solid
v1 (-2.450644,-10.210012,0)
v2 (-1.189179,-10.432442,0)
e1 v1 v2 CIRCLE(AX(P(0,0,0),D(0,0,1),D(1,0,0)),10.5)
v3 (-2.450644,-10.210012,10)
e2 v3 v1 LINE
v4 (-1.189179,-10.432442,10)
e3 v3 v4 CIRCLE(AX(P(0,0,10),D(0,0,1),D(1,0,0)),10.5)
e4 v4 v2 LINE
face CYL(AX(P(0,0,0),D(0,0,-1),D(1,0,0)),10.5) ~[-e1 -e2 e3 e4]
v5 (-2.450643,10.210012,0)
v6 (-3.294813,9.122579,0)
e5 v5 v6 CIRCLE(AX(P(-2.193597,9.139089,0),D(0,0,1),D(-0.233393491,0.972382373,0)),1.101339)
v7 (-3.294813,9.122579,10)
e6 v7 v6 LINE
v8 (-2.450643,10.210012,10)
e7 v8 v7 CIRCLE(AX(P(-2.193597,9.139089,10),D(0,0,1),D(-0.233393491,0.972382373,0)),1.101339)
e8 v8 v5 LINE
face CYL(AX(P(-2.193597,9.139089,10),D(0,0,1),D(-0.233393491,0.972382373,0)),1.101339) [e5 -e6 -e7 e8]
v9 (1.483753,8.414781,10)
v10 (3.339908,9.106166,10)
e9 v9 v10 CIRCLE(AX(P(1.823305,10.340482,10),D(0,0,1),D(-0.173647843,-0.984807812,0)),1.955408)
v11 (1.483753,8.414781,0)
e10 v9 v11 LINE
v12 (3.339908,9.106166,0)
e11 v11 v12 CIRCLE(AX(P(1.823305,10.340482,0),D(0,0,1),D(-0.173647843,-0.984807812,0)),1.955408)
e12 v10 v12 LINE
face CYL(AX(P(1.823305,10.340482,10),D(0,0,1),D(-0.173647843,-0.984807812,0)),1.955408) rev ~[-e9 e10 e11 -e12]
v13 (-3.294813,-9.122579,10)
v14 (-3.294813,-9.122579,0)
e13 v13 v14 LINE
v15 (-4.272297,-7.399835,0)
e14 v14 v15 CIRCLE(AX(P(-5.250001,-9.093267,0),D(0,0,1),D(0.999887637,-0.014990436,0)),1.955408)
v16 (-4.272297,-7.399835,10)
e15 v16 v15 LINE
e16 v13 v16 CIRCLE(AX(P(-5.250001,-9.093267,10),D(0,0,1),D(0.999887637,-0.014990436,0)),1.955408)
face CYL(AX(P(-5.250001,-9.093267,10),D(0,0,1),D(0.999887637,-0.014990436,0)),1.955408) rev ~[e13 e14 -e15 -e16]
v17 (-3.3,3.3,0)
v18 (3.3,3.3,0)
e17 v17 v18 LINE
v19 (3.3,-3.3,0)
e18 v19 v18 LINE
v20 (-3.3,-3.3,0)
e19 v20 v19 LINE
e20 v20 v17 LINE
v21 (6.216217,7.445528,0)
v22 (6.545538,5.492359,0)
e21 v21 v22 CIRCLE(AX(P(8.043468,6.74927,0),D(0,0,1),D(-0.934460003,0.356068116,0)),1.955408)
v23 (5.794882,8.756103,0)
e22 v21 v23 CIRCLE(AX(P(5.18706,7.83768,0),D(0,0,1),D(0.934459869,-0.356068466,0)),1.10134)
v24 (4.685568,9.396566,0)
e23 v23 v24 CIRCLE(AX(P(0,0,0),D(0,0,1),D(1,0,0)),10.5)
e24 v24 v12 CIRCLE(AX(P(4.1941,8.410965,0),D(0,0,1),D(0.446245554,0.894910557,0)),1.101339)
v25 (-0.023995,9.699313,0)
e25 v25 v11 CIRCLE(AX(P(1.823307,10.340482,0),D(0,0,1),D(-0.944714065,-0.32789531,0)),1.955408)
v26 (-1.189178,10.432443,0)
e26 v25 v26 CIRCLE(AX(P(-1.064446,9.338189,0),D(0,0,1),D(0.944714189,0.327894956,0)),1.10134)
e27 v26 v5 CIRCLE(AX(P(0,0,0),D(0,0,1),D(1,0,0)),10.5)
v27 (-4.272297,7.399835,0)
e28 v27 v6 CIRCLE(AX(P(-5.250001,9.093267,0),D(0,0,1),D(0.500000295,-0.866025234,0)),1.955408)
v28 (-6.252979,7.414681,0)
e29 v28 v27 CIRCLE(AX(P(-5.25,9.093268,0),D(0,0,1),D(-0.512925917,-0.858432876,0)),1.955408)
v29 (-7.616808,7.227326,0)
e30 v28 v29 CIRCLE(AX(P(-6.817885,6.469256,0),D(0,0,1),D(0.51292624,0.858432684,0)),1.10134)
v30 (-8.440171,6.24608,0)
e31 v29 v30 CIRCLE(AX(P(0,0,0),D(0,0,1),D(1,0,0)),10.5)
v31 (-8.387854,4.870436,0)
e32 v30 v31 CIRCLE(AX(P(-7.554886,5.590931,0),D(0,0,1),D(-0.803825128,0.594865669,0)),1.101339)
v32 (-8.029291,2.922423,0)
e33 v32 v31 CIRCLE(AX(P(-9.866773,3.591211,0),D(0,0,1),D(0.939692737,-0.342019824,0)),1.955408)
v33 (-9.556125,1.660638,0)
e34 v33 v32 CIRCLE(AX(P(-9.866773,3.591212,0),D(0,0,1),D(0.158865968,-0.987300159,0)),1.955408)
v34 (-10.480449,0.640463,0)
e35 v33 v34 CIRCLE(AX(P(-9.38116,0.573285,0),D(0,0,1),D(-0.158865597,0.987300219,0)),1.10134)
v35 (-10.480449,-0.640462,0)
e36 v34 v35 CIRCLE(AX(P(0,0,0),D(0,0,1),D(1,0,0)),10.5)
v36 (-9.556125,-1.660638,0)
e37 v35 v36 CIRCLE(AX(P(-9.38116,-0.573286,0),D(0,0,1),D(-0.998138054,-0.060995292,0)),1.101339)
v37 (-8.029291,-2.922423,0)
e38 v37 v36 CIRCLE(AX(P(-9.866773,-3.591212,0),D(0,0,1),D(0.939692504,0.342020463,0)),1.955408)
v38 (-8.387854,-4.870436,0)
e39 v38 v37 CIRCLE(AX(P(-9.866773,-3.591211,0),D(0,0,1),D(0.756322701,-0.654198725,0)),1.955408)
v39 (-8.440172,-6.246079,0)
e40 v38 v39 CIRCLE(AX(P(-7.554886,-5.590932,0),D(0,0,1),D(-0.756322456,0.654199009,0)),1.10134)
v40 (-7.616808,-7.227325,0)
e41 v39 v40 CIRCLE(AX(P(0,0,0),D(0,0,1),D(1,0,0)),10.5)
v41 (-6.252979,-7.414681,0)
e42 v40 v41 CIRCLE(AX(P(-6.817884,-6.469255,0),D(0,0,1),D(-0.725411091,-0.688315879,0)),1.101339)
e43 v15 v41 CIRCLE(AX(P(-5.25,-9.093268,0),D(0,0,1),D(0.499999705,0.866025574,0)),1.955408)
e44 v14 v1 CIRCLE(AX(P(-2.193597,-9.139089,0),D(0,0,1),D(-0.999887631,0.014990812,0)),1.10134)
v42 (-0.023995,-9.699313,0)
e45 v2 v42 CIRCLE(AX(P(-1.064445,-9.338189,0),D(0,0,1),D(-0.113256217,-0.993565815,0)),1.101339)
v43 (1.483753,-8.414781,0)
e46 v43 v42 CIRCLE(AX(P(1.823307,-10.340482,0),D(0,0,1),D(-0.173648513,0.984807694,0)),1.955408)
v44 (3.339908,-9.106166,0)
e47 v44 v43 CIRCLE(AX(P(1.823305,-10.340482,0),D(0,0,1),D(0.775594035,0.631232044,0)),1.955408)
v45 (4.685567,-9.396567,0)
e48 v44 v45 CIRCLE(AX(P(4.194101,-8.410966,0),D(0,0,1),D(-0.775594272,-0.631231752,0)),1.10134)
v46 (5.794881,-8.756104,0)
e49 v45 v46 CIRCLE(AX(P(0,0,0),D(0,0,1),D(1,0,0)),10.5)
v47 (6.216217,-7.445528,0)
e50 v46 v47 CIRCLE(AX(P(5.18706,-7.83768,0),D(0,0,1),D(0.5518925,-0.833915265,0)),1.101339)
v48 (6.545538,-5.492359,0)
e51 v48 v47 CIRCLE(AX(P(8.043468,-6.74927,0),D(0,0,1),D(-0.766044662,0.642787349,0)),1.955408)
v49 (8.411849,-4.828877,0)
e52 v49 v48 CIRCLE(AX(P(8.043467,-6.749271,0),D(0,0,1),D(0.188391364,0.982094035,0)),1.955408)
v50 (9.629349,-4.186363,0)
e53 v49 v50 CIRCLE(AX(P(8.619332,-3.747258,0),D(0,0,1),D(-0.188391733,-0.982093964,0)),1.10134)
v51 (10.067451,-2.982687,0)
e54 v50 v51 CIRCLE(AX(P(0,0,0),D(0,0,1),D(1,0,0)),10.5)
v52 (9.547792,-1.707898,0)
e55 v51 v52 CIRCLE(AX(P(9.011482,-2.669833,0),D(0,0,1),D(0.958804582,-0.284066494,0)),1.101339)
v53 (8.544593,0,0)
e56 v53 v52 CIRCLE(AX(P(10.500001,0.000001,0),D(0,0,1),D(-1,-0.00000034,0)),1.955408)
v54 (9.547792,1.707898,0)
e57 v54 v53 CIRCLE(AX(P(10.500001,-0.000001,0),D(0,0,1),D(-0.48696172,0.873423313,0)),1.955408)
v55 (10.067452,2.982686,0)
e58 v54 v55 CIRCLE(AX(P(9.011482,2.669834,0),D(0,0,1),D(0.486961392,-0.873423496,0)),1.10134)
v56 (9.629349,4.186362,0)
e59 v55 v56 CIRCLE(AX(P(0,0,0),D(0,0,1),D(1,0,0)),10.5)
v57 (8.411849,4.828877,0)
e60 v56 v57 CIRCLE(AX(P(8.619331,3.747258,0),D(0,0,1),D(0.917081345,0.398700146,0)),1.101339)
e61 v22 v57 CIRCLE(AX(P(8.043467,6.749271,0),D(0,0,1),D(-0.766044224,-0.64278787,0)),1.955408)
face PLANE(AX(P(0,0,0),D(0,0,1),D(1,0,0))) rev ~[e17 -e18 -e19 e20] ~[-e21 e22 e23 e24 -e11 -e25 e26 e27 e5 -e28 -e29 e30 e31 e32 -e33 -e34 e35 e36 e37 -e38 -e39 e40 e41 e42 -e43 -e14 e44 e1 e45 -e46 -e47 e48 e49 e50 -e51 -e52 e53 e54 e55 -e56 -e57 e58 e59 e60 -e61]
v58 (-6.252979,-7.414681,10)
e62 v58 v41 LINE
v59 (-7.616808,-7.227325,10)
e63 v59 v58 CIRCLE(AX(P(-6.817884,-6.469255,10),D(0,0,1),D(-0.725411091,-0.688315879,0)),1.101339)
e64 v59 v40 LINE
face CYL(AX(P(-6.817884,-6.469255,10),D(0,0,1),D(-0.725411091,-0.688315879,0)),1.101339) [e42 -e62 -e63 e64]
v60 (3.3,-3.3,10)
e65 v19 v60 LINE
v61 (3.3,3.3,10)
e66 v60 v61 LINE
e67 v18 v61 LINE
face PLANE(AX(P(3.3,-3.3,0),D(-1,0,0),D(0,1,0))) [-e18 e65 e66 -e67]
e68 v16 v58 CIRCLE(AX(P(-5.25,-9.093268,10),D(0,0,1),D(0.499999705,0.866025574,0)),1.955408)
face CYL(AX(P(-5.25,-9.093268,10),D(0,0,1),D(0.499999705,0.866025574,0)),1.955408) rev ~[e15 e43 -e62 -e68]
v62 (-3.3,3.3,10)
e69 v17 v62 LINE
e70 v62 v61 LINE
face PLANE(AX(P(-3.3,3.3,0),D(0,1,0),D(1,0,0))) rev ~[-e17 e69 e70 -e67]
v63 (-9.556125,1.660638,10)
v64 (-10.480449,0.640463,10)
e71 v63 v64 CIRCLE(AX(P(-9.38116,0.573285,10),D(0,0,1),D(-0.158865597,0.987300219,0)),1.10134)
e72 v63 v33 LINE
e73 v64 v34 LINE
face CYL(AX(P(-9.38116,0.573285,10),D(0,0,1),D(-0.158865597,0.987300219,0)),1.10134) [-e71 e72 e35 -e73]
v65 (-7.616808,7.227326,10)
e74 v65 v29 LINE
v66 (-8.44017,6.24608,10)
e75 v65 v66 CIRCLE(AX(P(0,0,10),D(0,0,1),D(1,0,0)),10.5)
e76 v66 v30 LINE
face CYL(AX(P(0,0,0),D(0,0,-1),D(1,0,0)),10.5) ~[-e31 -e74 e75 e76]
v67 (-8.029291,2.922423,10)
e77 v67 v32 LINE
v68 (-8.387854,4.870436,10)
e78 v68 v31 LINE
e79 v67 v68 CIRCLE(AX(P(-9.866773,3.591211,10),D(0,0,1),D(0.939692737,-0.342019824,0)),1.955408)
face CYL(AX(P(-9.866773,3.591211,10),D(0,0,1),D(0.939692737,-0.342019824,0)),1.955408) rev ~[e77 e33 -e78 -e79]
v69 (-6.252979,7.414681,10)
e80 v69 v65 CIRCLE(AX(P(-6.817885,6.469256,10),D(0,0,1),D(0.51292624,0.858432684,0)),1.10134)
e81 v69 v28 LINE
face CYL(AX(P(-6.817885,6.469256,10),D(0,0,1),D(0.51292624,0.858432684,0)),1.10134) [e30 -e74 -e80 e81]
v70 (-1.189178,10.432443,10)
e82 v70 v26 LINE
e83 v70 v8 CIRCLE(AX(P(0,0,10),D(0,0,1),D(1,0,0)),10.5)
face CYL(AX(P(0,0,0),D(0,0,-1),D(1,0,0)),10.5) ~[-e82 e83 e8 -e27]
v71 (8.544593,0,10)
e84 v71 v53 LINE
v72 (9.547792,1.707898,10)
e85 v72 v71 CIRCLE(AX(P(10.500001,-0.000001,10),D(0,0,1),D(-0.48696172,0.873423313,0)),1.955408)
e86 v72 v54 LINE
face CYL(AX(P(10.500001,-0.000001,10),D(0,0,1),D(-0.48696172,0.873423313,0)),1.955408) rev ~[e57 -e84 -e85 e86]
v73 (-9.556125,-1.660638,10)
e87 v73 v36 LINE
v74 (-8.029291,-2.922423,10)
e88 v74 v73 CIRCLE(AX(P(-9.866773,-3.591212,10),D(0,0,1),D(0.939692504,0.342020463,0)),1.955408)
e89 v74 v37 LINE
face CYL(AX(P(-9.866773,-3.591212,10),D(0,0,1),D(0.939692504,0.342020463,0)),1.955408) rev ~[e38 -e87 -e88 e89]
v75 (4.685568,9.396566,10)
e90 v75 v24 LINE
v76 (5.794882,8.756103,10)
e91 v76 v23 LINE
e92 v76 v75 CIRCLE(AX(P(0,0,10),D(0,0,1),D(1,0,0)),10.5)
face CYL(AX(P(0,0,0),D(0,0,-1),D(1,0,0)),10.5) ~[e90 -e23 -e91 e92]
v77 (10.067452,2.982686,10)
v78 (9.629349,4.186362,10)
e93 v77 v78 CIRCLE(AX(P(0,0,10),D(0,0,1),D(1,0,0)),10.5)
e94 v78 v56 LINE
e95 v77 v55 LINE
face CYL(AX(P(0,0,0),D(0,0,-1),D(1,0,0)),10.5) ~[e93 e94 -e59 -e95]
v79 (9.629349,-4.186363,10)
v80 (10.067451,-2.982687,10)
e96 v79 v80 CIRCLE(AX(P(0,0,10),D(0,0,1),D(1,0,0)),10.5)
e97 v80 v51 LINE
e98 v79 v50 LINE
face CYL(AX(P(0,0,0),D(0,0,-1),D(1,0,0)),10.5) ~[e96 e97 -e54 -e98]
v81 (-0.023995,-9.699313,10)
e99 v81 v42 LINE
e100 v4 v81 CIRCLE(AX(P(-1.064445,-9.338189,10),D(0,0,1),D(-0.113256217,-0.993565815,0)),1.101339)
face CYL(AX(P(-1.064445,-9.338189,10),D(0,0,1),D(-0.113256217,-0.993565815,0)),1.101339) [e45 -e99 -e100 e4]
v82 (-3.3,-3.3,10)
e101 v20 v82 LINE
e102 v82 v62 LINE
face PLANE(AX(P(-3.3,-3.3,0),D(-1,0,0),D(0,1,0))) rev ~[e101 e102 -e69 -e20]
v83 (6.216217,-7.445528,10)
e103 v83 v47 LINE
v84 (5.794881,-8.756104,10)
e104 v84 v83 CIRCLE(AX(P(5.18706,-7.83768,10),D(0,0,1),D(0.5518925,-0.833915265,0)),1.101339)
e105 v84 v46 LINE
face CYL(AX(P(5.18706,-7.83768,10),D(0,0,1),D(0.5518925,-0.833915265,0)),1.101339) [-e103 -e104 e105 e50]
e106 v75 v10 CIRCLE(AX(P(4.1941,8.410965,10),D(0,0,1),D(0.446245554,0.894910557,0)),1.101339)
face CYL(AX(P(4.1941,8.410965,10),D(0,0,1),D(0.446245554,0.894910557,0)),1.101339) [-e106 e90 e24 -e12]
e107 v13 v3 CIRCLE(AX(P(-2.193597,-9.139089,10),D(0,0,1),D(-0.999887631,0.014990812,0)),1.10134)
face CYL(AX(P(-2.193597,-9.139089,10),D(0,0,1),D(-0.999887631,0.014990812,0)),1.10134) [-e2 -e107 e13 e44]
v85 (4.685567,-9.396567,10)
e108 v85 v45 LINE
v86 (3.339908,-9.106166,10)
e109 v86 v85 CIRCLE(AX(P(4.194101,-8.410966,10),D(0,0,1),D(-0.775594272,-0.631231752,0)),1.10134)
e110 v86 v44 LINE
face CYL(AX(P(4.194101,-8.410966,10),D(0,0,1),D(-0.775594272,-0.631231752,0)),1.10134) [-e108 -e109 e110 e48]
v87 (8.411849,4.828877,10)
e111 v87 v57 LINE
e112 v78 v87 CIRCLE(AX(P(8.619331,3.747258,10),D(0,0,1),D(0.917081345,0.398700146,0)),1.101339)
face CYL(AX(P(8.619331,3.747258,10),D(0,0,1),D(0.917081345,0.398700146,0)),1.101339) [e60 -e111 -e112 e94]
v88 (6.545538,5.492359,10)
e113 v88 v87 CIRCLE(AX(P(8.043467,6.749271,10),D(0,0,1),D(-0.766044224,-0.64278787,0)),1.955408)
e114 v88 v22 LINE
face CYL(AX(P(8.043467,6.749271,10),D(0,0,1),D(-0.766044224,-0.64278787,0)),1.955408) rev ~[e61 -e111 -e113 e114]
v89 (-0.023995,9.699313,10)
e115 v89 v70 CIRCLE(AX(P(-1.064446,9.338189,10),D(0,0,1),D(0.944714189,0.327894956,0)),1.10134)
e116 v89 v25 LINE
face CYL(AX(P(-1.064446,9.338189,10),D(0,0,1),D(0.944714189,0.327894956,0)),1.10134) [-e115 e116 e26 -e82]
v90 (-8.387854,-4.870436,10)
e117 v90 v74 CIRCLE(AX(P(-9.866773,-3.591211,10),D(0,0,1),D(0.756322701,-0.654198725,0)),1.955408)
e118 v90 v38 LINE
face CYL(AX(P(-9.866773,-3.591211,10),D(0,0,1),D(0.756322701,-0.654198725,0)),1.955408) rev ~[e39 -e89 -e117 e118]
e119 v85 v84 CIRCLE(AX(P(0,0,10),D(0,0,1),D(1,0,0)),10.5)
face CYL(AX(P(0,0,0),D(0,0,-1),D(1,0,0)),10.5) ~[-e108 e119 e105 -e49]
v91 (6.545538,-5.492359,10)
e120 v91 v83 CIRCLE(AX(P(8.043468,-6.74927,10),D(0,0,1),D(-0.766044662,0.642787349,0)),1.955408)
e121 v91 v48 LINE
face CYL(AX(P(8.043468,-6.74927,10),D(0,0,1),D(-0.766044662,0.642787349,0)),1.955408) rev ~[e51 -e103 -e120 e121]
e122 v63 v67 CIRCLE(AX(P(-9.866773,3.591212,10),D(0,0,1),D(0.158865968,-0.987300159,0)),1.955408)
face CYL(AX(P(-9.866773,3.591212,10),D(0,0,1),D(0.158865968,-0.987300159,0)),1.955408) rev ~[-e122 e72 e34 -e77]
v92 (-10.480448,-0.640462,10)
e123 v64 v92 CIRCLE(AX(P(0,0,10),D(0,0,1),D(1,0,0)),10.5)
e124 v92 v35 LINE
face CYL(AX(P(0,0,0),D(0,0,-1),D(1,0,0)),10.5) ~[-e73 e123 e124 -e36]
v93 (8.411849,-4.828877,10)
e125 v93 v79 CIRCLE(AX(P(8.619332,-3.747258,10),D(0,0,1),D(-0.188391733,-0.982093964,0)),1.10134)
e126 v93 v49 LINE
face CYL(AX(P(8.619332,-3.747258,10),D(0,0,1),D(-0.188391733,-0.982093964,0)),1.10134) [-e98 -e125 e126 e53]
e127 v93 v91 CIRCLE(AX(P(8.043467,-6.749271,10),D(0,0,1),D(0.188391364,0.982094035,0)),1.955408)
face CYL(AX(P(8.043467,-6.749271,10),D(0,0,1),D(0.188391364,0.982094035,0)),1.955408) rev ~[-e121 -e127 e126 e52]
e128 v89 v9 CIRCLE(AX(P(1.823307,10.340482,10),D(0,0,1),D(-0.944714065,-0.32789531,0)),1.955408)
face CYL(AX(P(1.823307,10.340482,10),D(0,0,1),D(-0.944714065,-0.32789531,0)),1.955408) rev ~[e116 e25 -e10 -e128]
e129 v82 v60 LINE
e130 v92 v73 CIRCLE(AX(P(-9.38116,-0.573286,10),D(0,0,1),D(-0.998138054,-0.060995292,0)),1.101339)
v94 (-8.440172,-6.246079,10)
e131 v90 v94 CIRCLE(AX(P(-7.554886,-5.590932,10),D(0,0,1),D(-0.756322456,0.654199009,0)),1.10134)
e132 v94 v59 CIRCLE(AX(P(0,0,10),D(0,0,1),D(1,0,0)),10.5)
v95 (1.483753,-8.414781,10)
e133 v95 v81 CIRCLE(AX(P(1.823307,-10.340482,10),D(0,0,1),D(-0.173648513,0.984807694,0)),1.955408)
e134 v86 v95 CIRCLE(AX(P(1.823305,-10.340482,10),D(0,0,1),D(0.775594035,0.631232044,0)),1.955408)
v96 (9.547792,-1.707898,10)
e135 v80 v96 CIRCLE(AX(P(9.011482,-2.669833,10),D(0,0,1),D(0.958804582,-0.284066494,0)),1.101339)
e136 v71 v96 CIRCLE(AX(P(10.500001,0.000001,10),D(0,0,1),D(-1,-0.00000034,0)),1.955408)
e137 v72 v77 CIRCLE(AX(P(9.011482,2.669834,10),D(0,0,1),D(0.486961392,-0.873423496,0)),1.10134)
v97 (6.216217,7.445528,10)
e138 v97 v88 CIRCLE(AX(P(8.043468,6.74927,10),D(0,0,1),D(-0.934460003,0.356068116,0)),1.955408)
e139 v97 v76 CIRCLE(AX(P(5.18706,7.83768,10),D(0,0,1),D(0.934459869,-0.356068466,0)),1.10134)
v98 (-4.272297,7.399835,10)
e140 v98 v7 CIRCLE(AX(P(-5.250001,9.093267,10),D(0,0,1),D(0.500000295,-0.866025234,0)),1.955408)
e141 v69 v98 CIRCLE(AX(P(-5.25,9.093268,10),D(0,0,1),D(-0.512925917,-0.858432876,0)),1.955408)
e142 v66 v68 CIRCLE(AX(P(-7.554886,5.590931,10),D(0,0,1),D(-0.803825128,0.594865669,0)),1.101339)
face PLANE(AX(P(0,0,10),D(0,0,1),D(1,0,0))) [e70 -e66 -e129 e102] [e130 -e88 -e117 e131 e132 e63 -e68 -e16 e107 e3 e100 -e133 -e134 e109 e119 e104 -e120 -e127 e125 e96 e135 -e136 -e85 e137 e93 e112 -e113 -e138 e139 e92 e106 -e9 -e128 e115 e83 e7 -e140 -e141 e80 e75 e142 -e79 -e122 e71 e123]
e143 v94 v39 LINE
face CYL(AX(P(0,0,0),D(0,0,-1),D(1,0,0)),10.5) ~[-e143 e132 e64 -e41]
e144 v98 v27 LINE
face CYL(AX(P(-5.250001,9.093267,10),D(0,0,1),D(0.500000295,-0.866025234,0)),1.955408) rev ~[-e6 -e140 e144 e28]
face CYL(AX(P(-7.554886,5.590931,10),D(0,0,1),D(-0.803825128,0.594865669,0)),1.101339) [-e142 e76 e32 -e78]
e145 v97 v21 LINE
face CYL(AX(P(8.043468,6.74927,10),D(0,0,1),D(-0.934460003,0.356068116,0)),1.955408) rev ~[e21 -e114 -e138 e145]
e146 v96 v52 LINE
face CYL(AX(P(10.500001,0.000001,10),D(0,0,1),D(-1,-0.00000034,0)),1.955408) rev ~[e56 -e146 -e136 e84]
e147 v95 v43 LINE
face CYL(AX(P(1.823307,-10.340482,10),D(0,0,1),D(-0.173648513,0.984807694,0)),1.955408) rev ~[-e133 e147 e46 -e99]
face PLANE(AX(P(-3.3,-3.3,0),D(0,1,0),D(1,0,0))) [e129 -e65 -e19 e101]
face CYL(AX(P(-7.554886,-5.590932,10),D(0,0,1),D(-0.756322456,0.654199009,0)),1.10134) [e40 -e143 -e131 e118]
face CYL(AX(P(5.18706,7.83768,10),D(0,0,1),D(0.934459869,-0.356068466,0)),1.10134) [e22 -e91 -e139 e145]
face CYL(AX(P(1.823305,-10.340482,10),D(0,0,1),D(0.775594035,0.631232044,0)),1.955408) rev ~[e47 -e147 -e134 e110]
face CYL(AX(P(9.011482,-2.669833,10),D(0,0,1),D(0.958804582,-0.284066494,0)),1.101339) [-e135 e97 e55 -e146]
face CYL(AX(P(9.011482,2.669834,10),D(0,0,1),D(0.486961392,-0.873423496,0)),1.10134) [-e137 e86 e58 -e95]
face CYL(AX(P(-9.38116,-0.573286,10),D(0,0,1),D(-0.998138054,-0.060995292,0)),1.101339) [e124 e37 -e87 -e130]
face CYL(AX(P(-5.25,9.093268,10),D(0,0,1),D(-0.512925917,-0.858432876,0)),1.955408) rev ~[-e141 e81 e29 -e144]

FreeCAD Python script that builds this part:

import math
import FreeCAD as App
import Part
import Sketcher

doc = App.newDocument("Part")
body = doc.addObject("PartDesign::Body", "Body")

# Sketch on XY plane
sketch1 = body.newObject("Sketcher::SketchObject", "Sketch")
sketch1.AttachmentSupport = (doc.getObject("XY_Plane"), [""])
sketch1.MapMode = "FlatFace"
sketch1.addGeometry([
    Part.Circle(App.Vector(0, 0, 0), App.Vector(0, 0, 1), 10),  # 0
    Part.LineSegment(App.Vector(3, -3, 0), App.Vector(-3, -3, 0)),  # 1
    Part.LineSegment(App.Vector(-3, -3, 0), App.Vector(-3, 3, 0)),  # 2
    Part.LineSegment(App.Vector(-3, 3, 0), App.Vector(3, 3, 0)),  # 3
    Part.LineSegment(App.Vector(3, 3, 0), App.Vector(3, -3, 0)),  # 4
], False)
sketch1.addConstraint([
    Sketcher.Constraint("Coincident", 1, 2, 2, 1),
    Sketcher.Constraint("Coincident", 2, 2, 3, 1),
    Sketcher.Constraint("Coincident", 3, 2, 4, 1),
    Sketcher.Constraint("Coincident", 4, 2, 1, 1),
    Sketcher.Constraint("Horizontal", 1),
    Sketcher.Constraint("Vertical", 2),
    Sketcher.Constraint("Horizontal", 3),
    Sketcher.Constraint("Vertical", 4),
    Sketcher.Constraint("Coincident", 0, 3, -1, 1),
    Sketcher.Constraint("Symmetric", 1, 2, 3, 2, -1, 1),
    Sketcher.Constraint("Equal", 3, 2),
    Sketcher.Constraint("Diameter", 0, 21.0),
    Sketcher.Constraint("DistanceX", 1, 2, 1, 1, 6.6),
])
pad1 = body.newObject("PartDesign::Pad", "Pad")
pad1.Profile = sketch1
pad1.Length = 10

# Sketch on XY plane
sketch2 = body.newObject("Sketcher::SketchObject", "Sketch001")
sketch2.AttachmentSupport = (doc.getObject("XY_Plane"), [""])
sketch2.MapMode = "FlatFace"
sketch2.AttachmentOffset = App.Placement(App.Vector(0, 0, 10), App.Rotation())
sketch2.addGeometry([
    Part.ArcOfCircle(Part.Circle(App.Vector(10.5, 0, 0), App.Vector(0, 0, 1), 3), math.radians(-98), math.radians(98)),  # 0
    Part.ArcOfCircle(Part.Circle(App.Vector(9, 2.7, 0), App.Vector(0, 0, 1), 1.1), math.radians(-61), math.radians(17)),  # 1
    Part.ArcOfCircle(Part.Circle(App.Vector(10.5, 0, 0), App.Vector(0, 0, 1), 2), math.radians(119), math.radians(180)),  # 2
    Part.ArcOfCircle(Part.Circle(App.Vector(10.5, 0, 0), App.Vector(0, 0, 1), 2), math.radians(-180), math.radians(-119)),  # 3
    Part.ArcOfCircle(Part.Circle(App.Vector(9, -2.7, 0), App.Vector(0, 0, 1), 1.1), math.radians(-17), math.radians(61)),  # 4
], False)
sketch2.addConstraint([
    Sketcher.Constraint("Coincident", 0, 2, 1, 2),
    Sketcher.Constraint("Tangent", 1, 1, 2, 1),
    Sketcher.Constraint("Tangent", 2, 2, 3, 1),
    Sketcher.Constraint("Tangent", 3, 2, 4, 2),
    Sketcher.Constraint("Coincident", 4, 1, 0, 1),
    Sketcher.Constraint("Coincident", 2, 3, 0, 3),
    Sketcher.Constraint("Equal", 2, 3),
    Sketcher.Constraint("Equal", 1, 4),
    Sketcher.Constraint("Symmetric", 1, 3, 4, 3, -1),
    Sketcher.Constraint("PointOnObject", 2, 2, -1),
    Sketcher.Constraint("DistanceX", -1, 1, 0, 3, 10.5),
    Sketcher.Constraint("Radius", 1, 1.10134),
    Sketcher.Constraint("Radius", 0, 3.013887),
    Sketcher.Constraint("Radius", 2, 1.955408),
    Sketcher.Constraint("DistanceY", -1, 1, 1, 1, 1.707898),
])
pocket1 = body.newObject("PartDesign::Pocket", "Pocket")
pocket1.Profile = sketch2
pocket1.Type = "ThroughAll"
doc.recompute()

polarpattern = body.newObject("PartDesign::PolarPattern", "PolarPattern")
polarpattern.Originals = [pocket1]
polarpattern.Axis = (doc.getObject("Z_Axis"), [""])
polarpattern.Angle = 360
polarpattern.Occurrences = 9
body.Tip = polarpattern

doc.recompute()
